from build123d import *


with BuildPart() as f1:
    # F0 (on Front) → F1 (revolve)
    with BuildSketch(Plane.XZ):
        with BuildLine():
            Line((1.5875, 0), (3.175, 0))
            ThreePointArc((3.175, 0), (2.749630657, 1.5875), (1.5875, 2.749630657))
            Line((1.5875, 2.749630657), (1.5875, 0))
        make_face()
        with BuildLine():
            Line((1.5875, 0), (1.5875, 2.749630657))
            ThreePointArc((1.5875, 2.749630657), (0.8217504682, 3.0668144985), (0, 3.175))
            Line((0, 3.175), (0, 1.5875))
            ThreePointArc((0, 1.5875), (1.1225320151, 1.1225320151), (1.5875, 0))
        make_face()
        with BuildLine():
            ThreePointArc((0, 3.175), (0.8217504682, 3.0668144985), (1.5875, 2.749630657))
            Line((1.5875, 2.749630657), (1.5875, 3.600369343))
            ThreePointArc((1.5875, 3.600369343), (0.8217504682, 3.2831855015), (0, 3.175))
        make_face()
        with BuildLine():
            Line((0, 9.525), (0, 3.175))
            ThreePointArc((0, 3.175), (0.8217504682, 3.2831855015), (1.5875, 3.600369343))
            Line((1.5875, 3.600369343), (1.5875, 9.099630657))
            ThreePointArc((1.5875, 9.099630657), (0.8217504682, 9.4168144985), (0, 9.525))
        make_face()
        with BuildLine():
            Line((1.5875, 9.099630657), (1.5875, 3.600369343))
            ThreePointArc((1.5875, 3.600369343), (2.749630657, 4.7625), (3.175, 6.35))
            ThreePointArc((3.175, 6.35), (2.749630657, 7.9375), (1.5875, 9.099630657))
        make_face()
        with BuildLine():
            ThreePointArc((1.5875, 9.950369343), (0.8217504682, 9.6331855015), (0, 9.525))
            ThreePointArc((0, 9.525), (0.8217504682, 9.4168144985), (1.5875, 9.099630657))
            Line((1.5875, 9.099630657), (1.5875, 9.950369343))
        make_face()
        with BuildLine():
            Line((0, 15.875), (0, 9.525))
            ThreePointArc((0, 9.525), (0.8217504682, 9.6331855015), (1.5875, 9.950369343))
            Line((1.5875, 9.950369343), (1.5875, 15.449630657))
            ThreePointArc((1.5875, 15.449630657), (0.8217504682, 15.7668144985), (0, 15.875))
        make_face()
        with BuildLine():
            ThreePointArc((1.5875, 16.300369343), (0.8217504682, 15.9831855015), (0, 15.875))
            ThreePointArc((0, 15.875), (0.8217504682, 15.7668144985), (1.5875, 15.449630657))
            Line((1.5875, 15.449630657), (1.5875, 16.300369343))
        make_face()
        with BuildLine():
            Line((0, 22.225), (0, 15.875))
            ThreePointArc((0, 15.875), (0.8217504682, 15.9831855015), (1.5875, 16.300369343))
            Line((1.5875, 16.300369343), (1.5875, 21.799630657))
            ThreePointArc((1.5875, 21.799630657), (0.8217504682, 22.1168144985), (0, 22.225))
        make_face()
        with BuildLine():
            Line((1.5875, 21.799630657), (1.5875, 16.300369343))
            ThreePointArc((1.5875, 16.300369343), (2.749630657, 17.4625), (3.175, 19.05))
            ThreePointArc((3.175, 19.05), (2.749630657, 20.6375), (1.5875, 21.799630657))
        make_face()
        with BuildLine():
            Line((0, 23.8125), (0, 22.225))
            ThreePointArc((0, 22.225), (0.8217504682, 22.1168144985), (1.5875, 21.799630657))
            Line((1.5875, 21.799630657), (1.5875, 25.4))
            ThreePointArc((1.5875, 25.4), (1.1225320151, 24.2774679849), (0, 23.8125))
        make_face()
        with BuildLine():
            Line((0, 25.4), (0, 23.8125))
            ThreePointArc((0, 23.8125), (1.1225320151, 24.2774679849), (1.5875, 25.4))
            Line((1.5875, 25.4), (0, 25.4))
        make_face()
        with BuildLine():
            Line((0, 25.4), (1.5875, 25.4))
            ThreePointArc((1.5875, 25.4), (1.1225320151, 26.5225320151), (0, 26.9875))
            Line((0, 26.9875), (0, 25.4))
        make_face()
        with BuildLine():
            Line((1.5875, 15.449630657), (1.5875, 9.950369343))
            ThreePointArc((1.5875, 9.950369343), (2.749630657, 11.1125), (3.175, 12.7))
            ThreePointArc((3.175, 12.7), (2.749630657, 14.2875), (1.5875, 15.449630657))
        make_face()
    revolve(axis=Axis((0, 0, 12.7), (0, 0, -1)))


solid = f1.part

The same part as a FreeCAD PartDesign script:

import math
import FreeCAD as App
import Part
import Sketcher
Q = App.Units.Quantity

doc = App.newDocument("Part")
body = doc.addObject("PartDesign::Body", "Body")

# Sketch on XZ plane
sketch1 = body.newObject("Sketcher::SketchObject", "Sketch")
sketch1.AttachmentSupport = (doc.getObject("XZ_Plane"), [""])
sketch1.MapMode = "FlatFace"
sketch1.addGeometry([
    Part.LineSegment(App.Vector(1.6, 0, 0), App.Vector(3.2, 0, 0)),  # 0
    Part.ArcOfCircle(Part.Circle(App.Vector(0, 0, 0), App.Vector(0, 0, 1), 3.2), math.radians(0), math.radians(60)),  # 1
    Part.LineSegment(App.Vector(1.6, 2.7, 0), App.Vector(1.6, 3.6, 0)),  # 2
    Part.ArcOfCircle(Part.Circle(App.Vector(0, 6.3, 0), App.Vector(0, 0, 1), 3.2), math.radians(-60), math.radians(0)),  # 3
    Part.ArcOfCircle(Part.Circle(App.Vector(0, 6.3, 0), App.Vector(0, 0, 1), 3.2), math.radians(0), math.radians(60)),  # 4
    Part.LineSegment(App.Vector(1.6, 9.1, 0), App.Vector(1.6, 10, 0)),  # 5
    Part.ArcOfCircle(Part.Circle(App.Vector(0, 12.7, 0), App.Vector(0, 0, 1), 3.2), math.radians(-60), math.radians(0)),  # 6
    Part.ArcOfCircle(Part.Circle(App.Vector(0, 12.7, 0), App.Vector(0, 0, 1), 3.2), math.radians(0), math.radians(60)),  # 7
    Part.LineSegment(App.Vector(1.6, 15.4, 0), App.Vector(1.6, 16.3, 0)),  # 8
    Part.ArcOfCircle(Part.Circle(App.Vector(0, 19.1, 0), App.Vector(0, 0, 1), 3.2), math.radians(-60), math.radians(0)),  # 9
    Part.ArcOfCircle(Part.Circle(App.Vector(0, 19.1, 0), App.Vector(0, 0, 1), 3.2), math.radians(0), math.radians(60)),  # 10
    Part.LineSegment(App.Vector(1.6, 21.8, 0), App.Vector(1.6, 25.4, 0)),  # 11
    Part.ArcOfCircle(Part.Circle(App.Vector(0, 25.4, 0), App.Vector(0, 0, 1), 1.6), math.radians(0), math.radians(90)),  # 12
    Part.LineSegment(App.Vector(0, 27, 0), App.Vector(0, 1.6, 0)),  # 13
    Part.ArcOfCircle(Part.Circle(App.Vector(0, 0, 0), App.Vector(0, 0, 1), 1.6), math.radians(0), math.radians(90)),  # 14
], False)
sketch1.addConstraint([
    Sketcher.Constraint("Coincident", 0, 2, 1, 1),
    Sketcher.Constraint("Coincident", 1, 2, 2, 1),
    Sketcher.Constraint("Coincident", 2, 2, 3, 1),
    Sketcher.Constraint("Tangent", 3, 2, 4, 1),
    Sketcher.Constraint("Coincident", 4, 2, 5, 1),
    Sketcher.Constraint("Coincident", 5, 2, 6, 1),
    Sketcher.Constraint("Tangent", 6, 2, 7, 1),
    Sketcher.Constraint("Coincident", 7, 2, 8, 1),
    Sketcher.Constraint("Coincident", 8, 2, 9, 1),
    Sketcher.Constraint("Tangent", 9, 2, 10, 1),
    Sketcher.Constraint("Coincident", 10, 2, 11, 1),
    Sketcher.Constraint("Tangent", 11, 2, 12, 1),
    Sketcher.Constraint("Coincident", 12, 2, 13, 1),
    Sketcher.Constraint("Coincident", 13, 2, 14, 2),
    Sketcher.Constraint("Coincident", 14, 1, 0, 1),
    Sketcher.Constraint("Horizontal", 0),
    Sketcher.Constraint("Vertical", 2),
    Sketcher.Constraint("Vertical", 5),
    Sketcher.Constraint("Vertical", 8),
    Sketcher.Constraint("Vertical", 11),
    Sketcher.Constraint("Vertical", 13),
    Sketcher.Constraint("Coincident", 1, 3, -1, 1),
    Sketcher.Constraint("Coincident", 14, 3, -1, 1),
    Sketcher.Constraint("Equal", 1, 3),
    Sketcher.Constraint("Equal", 3, 4),
    Sketcher.Constraint("Equal", 4, 6),
    Sketcher.Constraint("Equal", 6, 7),
    Sketcher.Constraint("Equal", 7, 9),
    Sketcher.Constraint("Equal", 9, 10),
    Sketcher.Constraint("Equal", 12, 14),
    Sketcher.Constraint("PointOnObject", 3, 3, -2),
    Sketcher.Constraint("PointOnObject", 6, 3, -2),
    Sketcher.Constraint("PointOnObject", 9, 3, -2),
    Sketcher.Constraint("PointOnObject", 12, 3, -2),
    Sketcher.Constraint("PointOnObject", 0, 2, -1),
    Sketcher.Constraint("PointOnObject", 12, 2, -2),
    Sketcher.Constraint("Horizontal", 4, 3, 3, 2),
    Sketcher.Constraint("Horizontal", 7, 3, 6, 2),
    Sketcher.Constraint("Horizontal", 10, 3, 9, 2),
    Sketcher.Constraint("Vertical", 2, 2, 4, 2),
    Sketcher.Constraint("Vertical", 5, 2, 7, 2),
    Sketcher.Constraint("Vertical", 8, 2, 10, 2),
    Sketcher.Constraint("Equal", 2, 5),
    Sketcher.Constraint("Equal", 5, 8),
    Sketcher.Constraint("DistanceY", 13, 2, 13, 1, Q("1 in")),
    Sketcher.Constraint("Radius", 1, Q("0.125 in")),
    Sketcher.Constraint("Radius", 12, Q("0.0625 in")),
    Sketcher.Constraint("DistanceY", -1, 1, 6, 3, Q("0.5 in")),
])
revolution = body.newObject("PartDesign::Revolution", "Revolution")
revolution.Profile = sketch1
revolution.ReferenceAxis = (sketch1, ["V_Axis"])
revolution.Angle = 360

doc.recompute()
